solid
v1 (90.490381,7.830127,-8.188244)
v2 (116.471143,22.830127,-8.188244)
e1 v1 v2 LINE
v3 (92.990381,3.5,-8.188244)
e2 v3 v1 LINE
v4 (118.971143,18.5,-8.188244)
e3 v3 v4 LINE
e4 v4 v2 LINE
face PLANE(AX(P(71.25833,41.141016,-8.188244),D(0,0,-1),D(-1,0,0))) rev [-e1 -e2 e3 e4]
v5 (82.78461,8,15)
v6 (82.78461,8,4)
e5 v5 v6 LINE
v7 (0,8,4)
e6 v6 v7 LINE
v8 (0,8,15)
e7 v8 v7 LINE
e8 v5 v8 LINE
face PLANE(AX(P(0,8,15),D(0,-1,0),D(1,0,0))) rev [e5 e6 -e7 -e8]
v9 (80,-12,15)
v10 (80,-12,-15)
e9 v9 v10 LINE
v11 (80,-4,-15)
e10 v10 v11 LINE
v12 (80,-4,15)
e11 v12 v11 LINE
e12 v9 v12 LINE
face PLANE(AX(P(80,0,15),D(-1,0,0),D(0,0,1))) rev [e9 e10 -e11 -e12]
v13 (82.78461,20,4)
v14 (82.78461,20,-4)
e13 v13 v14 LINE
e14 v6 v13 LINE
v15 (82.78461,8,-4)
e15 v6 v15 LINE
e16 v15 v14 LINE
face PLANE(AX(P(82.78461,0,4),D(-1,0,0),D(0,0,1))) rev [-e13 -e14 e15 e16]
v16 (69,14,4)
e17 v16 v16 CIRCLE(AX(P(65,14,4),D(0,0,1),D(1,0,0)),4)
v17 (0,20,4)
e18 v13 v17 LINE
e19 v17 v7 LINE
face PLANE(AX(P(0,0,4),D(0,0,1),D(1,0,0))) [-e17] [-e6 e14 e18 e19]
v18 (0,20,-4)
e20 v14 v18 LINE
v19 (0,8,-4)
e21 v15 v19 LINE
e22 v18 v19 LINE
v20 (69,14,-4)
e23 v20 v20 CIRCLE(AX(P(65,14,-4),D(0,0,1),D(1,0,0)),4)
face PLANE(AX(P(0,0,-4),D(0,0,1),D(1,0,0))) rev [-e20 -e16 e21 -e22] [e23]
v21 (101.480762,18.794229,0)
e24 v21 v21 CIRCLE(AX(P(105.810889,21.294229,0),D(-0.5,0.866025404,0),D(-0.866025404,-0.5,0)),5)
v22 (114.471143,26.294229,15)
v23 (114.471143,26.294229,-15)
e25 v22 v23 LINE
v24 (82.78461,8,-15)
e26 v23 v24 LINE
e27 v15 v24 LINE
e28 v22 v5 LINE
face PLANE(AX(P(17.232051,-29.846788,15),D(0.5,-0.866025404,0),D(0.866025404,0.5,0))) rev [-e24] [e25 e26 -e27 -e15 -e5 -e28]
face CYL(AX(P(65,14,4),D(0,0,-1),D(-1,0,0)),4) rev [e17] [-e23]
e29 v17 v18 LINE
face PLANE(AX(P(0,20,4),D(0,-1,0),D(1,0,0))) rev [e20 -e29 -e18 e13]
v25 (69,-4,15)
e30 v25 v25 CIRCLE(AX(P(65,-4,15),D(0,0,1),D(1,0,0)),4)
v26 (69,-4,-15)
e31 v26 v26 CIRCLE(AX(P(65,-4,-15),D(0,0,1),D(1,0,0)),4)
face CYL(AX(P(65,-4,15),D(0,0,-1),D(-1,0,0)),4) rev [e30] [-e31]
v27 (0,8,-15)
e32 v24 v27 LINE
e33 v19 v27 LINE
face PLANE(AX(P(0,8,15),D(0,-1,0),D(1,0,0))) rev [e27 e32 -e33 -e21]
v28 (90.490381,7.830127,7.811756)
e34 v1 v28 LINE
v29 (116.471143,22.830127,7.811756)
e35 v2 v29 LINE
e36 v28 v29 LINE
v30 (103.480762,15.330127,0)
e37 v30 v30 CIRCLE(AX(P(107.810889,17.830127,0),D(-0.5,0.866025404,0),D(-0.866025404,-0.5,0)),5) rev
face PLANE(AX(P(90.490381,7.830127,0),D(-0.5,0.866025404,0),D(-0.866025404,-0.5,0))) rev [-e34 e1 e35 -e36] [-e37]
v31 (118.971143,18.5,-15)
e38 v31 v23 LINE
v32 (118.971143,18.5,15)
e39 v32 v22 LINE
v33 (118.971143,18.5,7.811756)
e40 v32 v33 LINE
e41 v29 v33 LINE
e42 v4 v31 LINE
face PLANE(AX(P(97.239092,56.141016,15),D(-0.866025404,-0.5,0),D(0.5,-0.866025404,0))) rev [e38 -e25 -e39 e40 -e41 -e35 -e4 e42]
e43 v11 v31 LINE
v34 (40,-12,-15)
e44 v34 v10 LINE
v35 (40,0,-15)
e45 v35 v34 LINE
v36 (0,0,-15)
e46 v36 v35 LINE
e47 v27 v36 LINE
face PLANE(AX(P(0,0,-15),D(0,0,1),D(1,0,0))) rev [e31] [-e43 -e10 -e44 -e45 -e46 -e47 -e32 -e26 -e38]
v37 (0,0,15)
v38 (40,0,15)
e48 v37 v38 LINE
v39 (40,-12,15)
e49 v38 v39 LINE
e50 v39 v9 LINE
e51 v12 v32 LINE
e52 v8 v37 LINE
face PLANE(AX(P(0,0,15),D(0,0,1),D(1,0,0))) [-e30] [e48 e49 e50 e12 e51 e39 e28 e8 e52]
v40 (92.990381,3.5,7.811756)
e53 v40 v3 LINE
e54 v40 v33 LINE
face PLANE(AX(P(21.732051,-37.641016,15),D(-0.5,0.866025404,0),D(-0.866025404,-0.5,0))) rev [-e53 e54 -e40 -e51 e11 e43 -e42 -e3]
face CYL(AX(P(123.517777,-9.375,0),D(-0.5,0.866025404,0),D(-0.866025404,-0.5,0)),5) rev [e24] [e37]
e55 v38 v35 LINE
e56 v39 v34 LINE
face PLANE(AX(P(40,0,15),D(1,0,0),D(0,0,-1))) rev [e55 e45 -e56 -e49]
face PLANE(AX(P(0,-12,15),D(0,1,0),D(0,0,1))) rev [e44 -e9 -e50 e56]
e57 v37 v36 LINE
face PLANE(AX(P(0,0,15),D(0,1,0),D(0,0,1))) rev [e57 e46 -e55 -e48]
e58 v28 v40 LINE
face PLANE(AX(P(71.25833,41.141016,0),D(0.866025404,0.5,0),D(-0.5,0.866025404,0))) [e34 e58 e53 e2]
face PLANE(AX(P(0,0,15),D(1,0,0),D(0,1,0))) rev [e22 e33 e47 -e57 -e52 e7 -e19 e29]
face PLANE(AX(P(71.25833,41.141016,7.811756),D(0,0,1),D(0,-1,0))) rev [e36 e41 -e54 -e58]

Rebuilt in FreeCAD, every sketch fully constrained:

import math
import FreeCAD as App
import Part
import Sketcher
Q = App.Units.Quantity


def add_polygon(sketch, points):
    """Adds a closed chain of lines whose ends are joined by coincident constraints."""
    first, n = sketch.GeometryCount, len(points)
    for a, b in zip(points, points[1:] + points[:1]):
        sketch.addGeometry(Part.LineSegment(App.Vector(*a, 0), App.Vector(*b, 0)), False)
    for i in range(n):
        sketch.addConstraint(Sketcher.Constraint("Coincident", first + i, 2, first + (i + 1) % n, 1))

doc = App.newDocument("Part")
body = doc.addObject("PartDesign::Body", "Body")

sketch1 = body.newObject("Sketcher::SketchObject", "Sketch")
sketch1.AttachmentSupport = (doc.getObject("XY_Plane"), [""])
sketch1.MapMode = "FlatFace"
add_polygon(sketch1, [(0, 0), (40, 0), (40, -12), (80, -12), (80, -4), (119, 18.5), (114.5, 26.3), (82.8, 8), (0, 8)])
sketch1.addGeometry(Part.Circle(App.Vector(65, -4, 0), App.Vector(0, 0, 1), 4), False)
sketch1.addConstraint(Sketcher.Constraint("Horizontal", 0))
sketch1.addConstraint(Sketcher.Constraint("Vertical", 1))
sketch1.addConstraint(Sketcher.Constraint("Horizontal", 2))
sketch1.addConstraint(Sketcher.Constraint("Vertical", 3))
sketch1.addConstraint(Sketcher.Constraint("Horizontal", 7))
sketch1.addConstraint(Sketcher.Constraint("Vertical", 8))
sketch1.addConstraint(Sketcher.Constraint("Coincident", 8, 2, -1, 1))
sketch1.addConstraint(Sketcher.Constraint("Perpendicular", 4, 5))
sketch1.addConstraint(Sketcher.Constraint("Perpendicular", 5, 6))
sketch1.addConstraint(Sketcher.Constraint("Horizontal", 9, 3, 3, 2))
sketch1.addConstraint(Sketcher.Constraint("Equal", 0, 2))
sketch1.addConstraint(Sketcher.Constraint("Equal", 3, 8))
sketch1.addConstraint(Sketcher.Constraint("Diameter", 9, 8.0))
sketch1.addConstraint(Sketcher.Constraint("DistanceX", 0, 1, 0, 2, 40.0))
sketch1.addConstraint(Sketcher.Constraint("DistanceY", 1, 2, 1, 1, 12.0))
sketch1.addConstraint(Sketcher.Constraint("DistanceY", 3, 1, 3, 2, 8.0))
sketch1.addConstraint(Sketcher.Constraint("Angle", 4, Q("30 deg")))
sketch1.addConstraint(Sketcher.Constraint("Distance", 4, 45.0))
sketch1.addConstraint(Sketcher.Constraint("Distance", 5, 9.0))
sketch1.addConstraint(Sketcher.Constraint("DistanceX", -1, 1, 9, 3, 65.0))
pad1 = body.newObject("PartDesign::Pad", "Pad")
pad1.Profile = sketch1
pad1.Length = 30
pad1.Midplane = True

sketch2 = body.newObject("Sketcher::SketchObject", "Sketch001")
sketch2.AttachmentSupport = (doc.getObject("XY_Plane"), [""])
sketch2.MapMode = "FlatFace"
sketch2.addGeometry(Part.LineSegment(App.Vector(0, 20, 0), App.Vector(0, 8, 0)), False)
sketch2.addGeometry(Part.LineSegment(App.Vector(0, 8, 0), App.Vector(65, 8, 0)), False)
sketch2.addGeometry(Part.LineSegment(App.Vector(65, 8, 0), App.Vector(65, 10, 0)), False)
sketch2.addGeometry(Part.ArcOfCircle(Part.Circle(App.Vector(65, 14, 0), App.Vector(0, 0, 1), 4), math.radians(90), math.radians(270)), False)
sketch2.addGeometry(Part.LineSegment(App.Vector(65, 18, 0), App.Vector(65, 20, 0)), False)
sketch2.addGeometry(Part.LineSegment(App.Vector(65, 20, 0), App.Vector(0, 20, 0)), False)
sketch2.addGeometry(Part.LineSegment(App.Vector(65, 10, 0), App.Vector(65, 8, 0)), False)
sketch2.addGeometry(Part.LineSegment(App.Vector(65, 8, 0), App.Vector(82.8, 8, 0)), False)
sketch2.addGeometry(Part.LineSegment(App.Vector(82.8, 8, 0), App.Vector(82.8, 20, 0)), False)
sketch2.addGeometry(Part.LineSegment(App.Vector(82.8, 20, 0), App.Vector(65, 20, 0)), False)
sketch2.addGeometry(Part.LineSegment(App.Vector(65, 20, 0), App.Vector(65, 18, 0)), False)
sketch2.addGeometry(Part.ArcOfCircle(Part.Circle(App.Vector(65, 14, 0), App.Vector(0, 0, 1), 4), math.radians(0), math.radians(90)), False)
sketch2.addGeometry(Part.ArcOfCircle(Part.Circle(App.Vector(65, 14, 0), App.Vector(0, 0, 1), 4), math.radians(-90), math.radians(0)), False)
sketch2.addConstraint(Sketcher.Constraint("Coincident", 0, 2, 1, 1))
sketch2.addConstraint(Sketcher.Constraint("Coincident", 1, 2, 2, 1))
sketch2.addConstraint(Sketcher.Constraint("Coincident", 2, 2, 3, 2))
sketch2.addConstraint(Sketcher.Constraint("Coincident", 3, 1, 4, 1))
sketch2.addConstraint(Sketcher.Constraint("Coincident", 4, 2, 5, 1))
sketch2.addConstraint(Sketcher.Constraint("Coincident", 5, 2, 0, 1))
sketch2.addConstraint(Sketcher.Constraint("Coincident", 6, 2, 7, 1))
sketch2.addConstraint(Sketcher.Constraint("Coincident", 7, 2, 8, 1))
sketch2.addConstraint(Sketcher.Constraint("Coincident", 8, 2, 9, 1))
sketch2.addConstraint(Sketcher.Constraint("Coincident", 9, 2, 10, 1))
sketch2.addConstraint(Sketcher.Constraint("Coincident", 10, 2, 11, 2))
sketch2.addConstraint(Sketcher.Constraint("Tangent", 11, 1, 12, 2))
sketch2.addConstraint(Sketcher.Constraint("Coincident", 12, 1, 6, 1))
sketch2.addConstraint(Sketcher.Constraint("Vertical", 0))
sketch2.addConstraint(Sketcher.Constraint("Horizontal", 1))
sketch2.addConstraint(Sketcher.Constraint("Vertical", 2))
sketch2.addConstraint(Sketcher.Constraint("Vertical", 4))
sketch2.addConstraint(Sketcher.Constraint("Horizontal", 5))
sketch2.addConstraint(Sketcher.Constraint("Vertical", 6))
sketch2.addConstraint(Sketcher.Constraint("Horizontal", 7))
sketch2.addConstraint(Sketcher.Constraint("Vertical", 8))
sketch2.addConstraint(Sketcher.Constraint("Horizontal", 9))
sketch2.addConstraint(Sketcher.Constraint("Vertical", 10))
sketch2.addConstraint(Sketcher.Constraint("Coincident", 11, 3, 3, 3))
sketch2.addConstraint(Sketcher.Constraint("Coincident", 6, 2, 1, 2))
sketch2.addConstraint(Sketcher.Constraint("Coincident", 9, 2, 4, 2))
sketch2.addConstraint(Sketcher.Constraint("Equal", 3, 11))
sketch2.addConstraint(Sketcher.Constraint("Equal", 11, 12))
sketch2.addConstraint(Sketcher.Constraint("PointOnObject", 0, 2, -2))
sketch2.addConstraint(Sketcher.Constraint("Horizontal", 12, 3, 11, 1))
sketch2.addConstraint(Sketcher.Constraint("Vertical", 12, 3, 1, 2))
sketch2.addConstraint(Sketcher.Constraint("Vertical", 2, 2, 3, 1))
sketch2.addConstraint(Sketcher.Constraint("Equal", 2, 4))
sketch2.addConstraint(Sketcher.Constraint("Radius", 3, 4.0))
sketch2.addConstraint(Sketcher.Constraint("DistanceX", 1, 1, 1, 2, 65.0))
sketch2.addConstraint(Sketcher.Constraint("DistanceY", 0, 2, 0, 1, 12.0))
sketch2.addConstraint(Sketcher.Constraint("DistanceY", -1, 1, 3, 3, 14.0))
sketch2.addConstraint(Sketcher.Constraint("DistanceX", 7, 1, 7, 2, 17.78461))
pad2 = body.newObject("PartDesign::Pad", "Pad001")
pad2.Profile = sketch2
pad2.Length = 8
pad2.Midplane = True

sketch3 = body.newObject("Sketcher::SketchObject", "Sketch002")
sketch3.Placement = App.Placement(App.Vector(17.232051, -29.846788, 0), App.Rotation(App.Vector(0.866025404, 0.5, 0), App.Vector(0, 0, -1), App.Vector(-0.5, 0.866025404, 0), "ZXY"))
sketch3.addGeometry(Part.Circle(App.Vector(102, 0, 0), App.Vector(0, 0, 1), 5), False)
sketch3.addConstraint(Sketcher.Constraint("PointOnObject", 0, 3, -1))
sketch3.addConstraint(Sketcher.Constraint("Diameter", 0, 10.0))
sketch3.addConstraint(Sketcher.Constraint("DistanceX", -1, 1, 0, 3, 102.282032))
pocket1 = body.newObject("PartDesign::Pocket", "Pocket")
pocket1.Profile = sketch3
pocket1.Type = "ThroughAll"

sketch4 = body.newObject("Sketcher::SketchObject", "Sketch003")
sketch4.Placement = App.Placement(App.Vector(97.239092, 56.141016, 0), App.Rotation(App.Vector(0, 0, -1), App.Vector(-0.5, 0.866025404, 0), App.Vector(0.866025404, 0.5, 0), "ZXY"))
add_polygon(sketch4, [(-8, -38), (-8, -43), (8, -43), (8, -38)])
sketch4.addConstraint(Sketcher.Constraint("Vertical", 0))
sketch4.addConstraint(Sketcher.Constraint("Horizontal", 1))
sketch4.addConstraint(Sketcher.Constraint("Vertical", 2))
sketch4.addConstraint(Sketcher.Constraint("Horizontal", 3))
sketch4.addConstraint(Sketcher.Constraint("DistanceX", 1, 1, 1, 2, 16.0))
sketch4.addConstraint(Sketcher.Constraint("DistanceY", 0, 2, 0, 1, 5.0))
sketch4.addConstraint(Sketcher.Constraint("DistanceY", 0, 2, -1, 1, 43.464102))
sketch4.addConstraint(Sketcher.Constraint("DistanceX", 0, 2, -1, 1, 7.811756))
pocket2 = body.newObject("PartDesign::Pocket", "Pocket001")
pocket2.Profile = sketch4
pocket2.Length = 30

doc.recompute()
